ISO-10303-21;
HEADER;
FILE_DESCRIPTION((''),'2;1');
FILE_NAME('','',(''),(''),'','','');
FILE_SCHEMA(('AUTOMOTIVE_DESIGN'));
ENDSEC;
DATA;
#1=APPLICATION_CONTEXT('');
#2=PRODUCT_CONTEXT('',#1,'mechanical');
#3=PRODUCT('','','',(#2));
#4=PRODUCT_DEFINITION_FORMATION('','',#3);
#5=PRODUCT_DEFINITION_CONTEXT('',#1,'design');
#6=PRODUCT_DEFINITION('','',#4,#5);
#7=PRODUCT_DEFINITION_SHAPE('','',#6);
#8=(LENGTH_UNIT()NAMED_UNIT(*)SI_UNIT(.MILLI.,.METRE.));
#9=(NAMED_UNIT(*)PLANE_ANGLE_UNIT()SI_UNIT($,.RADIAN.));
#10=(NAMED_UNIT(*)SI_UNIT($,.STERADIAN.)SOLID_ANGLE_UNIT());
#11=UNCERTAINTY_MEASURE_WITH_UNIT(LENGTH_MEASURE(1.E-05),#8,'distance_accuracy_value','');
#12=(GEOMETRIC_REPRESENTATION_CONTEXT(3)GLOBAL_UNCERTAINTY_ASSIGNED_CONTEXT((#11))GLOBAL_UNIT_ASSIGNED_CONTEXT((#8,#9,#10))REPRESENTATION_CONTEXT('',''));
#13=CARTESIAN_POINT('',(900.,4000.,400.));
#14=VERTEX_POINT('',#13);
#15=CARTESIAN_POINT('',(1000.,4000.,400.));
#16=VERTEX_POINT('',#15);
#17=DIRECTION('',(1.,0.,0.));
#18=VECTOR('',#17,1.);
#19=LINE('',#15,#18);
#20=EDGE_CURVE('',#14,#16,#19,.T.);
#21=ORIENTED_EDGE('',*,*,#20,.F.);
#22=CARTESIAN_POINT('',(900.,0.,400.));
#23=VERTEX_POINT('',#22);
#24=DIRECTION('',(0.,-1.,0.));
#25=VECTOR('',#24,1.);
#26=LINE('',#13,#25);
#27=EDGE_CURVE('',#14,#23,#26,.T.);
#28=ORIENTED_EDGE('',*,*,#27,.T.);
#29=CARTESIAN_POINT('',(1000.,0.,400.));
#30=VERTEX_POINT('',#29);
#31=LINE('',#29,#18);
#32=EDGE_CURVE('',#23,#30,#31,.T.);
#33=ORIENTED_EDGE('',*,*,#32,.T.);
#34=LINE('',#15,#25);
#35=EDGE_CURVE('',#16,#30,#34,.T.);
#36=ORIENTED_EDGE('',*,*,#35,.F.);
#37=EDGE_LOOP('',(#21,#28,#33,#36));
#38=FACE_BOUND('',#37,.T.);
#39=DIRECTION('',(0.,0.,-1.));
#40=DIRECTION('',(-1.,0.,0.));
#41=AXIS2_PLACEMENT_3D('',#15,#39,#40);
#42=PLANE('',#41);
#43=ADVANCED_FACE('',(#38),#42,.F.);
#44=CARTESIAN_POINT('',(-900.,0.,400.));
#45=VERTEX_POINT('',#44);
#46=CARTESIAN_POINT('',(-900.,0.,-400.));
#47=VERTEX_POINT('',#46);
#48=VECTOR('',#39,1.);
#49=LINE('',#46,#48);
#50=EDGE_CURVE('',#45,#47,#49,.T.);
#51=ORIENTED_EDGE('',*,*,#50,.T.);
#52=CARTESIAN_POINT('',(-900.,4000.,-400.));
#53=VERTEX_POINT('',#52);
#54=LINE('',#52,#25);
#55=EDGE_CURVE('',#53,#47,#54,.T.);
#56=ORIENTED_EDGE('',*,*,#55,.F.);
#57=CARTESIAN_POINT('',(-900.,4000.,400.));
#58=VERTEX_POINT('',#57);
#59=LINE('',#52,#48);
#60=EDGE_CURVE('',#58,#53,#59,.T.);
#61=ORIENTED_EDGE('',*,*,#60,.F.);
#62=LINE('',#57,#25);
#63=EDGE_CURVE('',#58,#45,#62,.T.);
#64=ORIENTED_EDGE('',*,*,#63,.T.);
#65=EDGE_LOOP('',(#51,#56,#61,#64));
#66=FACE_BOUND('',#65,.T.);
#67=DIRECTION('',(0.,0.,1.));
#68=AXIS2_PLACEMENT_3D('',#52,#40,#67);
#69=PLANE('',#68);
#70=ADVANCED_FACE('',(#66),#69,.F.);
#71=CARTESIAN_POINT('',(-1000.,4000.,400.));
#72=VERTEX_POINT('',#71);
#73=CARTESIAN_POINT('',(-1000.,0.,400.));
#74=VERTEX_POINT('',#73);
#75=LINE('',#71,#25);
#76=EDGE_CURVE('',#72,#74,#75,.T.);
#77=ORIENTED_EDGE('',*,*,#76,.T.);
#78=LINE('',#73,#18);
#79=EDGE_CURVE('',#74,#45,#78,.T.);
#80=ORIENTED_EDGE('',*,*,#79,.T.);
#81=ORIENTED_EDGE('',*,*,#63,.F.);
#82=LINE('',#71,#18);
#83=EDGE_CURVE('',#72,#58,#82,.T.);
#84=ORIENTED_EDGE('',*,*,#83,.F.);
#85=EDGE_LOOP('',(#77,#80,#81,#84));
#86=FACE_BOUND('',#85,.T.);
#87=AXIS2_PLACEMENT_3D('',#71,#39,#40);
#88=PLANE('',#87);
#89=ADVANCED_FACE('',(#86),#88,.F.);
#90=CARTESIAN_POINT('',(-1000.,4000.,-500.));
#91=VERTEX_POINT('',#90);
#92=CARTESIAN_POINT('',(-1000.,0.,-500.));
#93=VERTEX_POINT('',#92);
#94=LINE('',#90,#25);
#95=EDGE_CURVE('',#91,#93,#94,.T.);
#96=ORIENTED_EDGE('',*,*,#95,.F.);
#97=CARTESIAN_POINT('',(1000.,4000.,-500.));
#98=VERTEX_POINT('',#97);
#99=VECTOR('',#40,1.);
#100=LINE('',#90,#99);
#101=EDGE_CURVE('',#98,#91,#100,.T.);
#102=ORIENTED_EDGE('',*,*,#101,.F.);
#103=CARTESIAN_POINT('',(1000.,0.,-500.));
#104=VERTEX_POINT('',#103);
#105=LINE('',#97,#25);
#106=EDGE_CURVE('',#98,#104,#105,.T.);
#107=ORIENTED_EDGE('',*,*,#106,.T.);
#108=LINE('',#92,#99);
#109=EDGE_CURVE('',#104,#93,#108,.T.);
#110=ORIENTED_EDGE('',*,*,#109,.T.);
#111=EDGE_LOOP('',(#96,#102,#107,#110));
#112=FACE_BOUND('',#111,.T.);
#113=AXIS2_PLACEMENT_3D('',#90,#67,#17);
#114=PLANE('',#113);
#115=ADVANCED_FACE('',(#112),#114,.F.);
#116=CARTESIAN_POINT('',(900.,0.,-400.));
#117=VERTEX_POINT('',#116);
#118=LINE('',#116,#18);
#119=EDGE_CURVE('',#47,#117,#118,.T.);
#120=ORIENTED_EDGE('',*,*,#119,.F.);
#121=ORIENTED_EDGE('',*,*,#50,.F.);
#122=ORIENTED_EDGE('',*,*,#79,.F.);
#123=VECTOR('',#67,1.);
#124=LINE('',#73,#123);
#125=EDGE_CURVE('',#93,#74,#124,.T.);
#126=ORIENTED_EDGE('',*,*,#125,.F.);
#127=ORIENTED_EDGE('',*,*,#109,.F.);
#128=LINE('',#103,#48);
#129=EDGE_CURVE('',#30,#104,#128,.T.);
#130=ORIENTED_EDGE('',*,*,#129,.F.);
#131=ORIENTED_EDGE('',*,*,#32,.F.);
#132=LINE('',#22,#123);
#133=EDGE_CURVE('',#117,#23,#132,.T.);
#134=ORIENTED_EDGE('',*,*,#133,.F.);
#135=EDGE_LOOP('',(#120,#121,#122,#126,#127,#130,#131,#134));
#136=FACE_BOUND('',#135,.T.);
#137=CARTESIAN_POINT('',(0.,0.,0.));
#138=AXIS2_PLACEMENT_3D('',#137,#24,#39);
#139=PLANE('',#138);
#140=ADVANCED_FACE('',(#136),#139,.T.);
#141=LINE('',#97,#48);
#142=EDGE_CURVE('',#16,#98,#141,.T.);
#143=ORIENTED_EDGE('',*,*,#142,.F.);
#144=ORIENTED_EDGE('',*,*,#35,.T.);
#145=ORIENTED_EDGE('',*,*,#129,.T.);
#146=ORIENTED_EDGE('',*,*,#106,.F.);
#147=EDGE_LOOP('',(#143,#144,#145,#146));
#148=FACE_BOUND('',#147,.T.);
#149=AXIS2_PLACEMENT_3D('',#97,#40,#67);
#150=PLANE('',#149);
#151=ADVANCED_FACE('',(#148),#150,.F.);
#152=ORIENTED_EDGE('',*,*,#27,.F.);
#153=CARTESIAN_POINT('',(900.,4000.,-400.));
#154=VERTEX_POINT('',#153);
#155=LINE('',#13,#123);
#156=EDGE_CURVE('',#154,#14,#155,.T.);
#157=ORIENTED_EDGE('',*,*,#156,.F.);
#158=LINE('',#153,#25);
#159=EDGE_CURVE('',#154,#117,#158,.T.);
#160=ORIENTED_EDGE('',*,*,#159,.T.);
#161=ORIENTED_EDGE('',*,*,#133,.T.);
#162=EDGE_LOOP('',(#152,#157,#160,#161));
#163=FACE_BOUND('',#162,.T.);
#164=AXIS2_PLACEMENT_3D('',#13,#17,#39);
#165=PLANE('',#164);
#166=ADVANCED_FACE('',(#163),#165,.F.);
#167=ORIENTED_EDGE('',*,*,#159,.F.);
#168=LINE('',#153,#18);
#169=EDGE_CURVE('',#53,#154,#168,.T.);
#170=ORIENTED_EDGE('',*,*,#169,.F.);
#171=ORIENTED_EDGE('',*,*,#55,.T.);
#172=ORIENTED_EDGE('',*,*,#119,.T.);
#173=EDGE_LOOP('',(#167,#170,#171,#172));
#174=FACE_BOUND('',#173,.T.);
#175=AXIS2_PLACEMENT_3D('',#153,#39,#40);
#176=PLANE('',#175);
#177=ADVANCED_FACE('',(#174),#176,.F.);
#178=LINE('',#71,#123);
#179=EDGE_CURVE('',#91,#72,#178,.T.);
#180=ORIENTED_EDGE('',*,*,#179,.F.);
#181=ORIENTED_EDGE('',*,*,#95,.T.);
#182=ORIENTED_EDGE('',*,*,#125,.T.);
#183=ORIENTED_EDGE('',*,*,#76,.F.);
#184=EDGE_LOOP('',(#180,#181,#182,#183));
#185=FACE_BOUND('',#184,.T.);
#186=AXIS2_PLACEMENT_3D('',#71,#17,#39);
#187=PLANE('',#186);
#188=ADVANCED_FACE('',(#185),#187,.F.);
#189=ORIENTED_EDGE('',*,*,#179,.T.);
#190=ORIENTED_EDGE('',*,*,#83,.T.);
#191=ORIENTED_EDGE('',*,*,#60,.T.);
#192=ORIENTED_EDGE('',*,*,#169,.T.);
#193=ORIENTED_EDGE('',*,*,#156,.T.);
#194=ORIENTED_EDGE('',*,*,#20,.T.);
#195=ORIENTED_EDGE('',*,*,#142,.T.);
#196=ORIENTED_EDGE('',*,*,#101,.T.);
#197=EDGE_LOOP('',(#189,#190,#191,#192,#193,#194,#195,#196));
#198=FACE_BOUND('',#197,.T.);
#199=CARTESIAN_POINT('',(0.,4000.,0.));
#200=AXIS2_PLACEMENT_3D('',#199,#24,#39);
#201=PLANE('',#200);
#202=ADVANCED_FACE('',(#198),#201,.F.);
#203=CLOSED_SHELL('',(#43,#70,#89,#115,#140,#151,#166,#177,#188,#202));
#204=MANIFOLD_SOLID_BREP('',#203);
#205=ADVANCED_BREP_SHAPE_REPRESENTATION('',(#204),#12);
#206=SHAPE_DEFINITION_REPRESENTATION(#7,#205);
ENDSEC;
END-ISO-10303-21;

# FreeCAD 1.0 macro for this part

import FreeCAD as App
import Part
import Sketcher
Q = App.Units.Quantity

doc = App.newDocument("Part")
params = doc.addObject("Spreadsheet::Sheet", "Params")
for row, (alias, value) in enumerate([
    ("sketch1_width", "100 mm"),
    ("sketch1_width2", "1800 mm"),
    ("sketch1_height", "900 mm"),
    ("sketch1_height2", "800 mm"),
    ("pad1_length", "4000 mm"),
], start=1):
    params.set(f"A{row}", alias)
    params.set(f"B{row}", "=" + value)
    params.setAlias(f"B{row}", alias)

body = doc.addObject("PartDesign::Body", "Body")

# Sketch on XZ plane
sketch1 = body.newObject("Sketcher::SketchObject", "Sketch")
sketch1.AttachmentSupport = (doc.getObject("XZ_Plane"), [""])
sketch1.MapMode = "FlatFace"
sketch1.addGeometry(Part.LineSegment(App.Vector(-1000, -500, 0), App.Vector(-1000, 400, 0)), False)
sketch1.addGeometry(Part.LineSegment(App.Vector(-1000, 400, 0), App.Vector(-900, 400, 0)), False)
sketch1.addGeometry(Part.LineSegment(App.Vector(-900, 400, 0), App.Vector(-900, -400, 0)), False)
sketch1.addGeometry(Part.LineSegment(App.Vector(-900, -400, 0), App.Vector(900, -400, 0)), False)
sketch1.addGeometry(Part.LineSegment(App.Vector(900, -400, 0), App.Vector(900, 400, 0)), False)
sketch1.addGeometry(Part.LineSegment(App.Vector(900, 400, 0), App.Vector(1000, 400, 0)), False)
sketch1.addGeometry(Part.LineSegment(App.Vector(1000, 400, 0), App.Vector(1000, -500, 0)), False)
sketch1.addGeometry(Part.LineSegment(App.Vector(1000, -500, 0), App.Vector(-1000, -500, 0)), False)
sketch1.addConstraint(Sketcher.Constraint("Coincident", 0, 2, 1, 1))
sketch1.addConstraint(Sketcher.Constraint("Coincident", 1, 2, 2, 1))
sketch1.addConstraint(Sketcher.Constraint("Coincident", 2, 2, 3, 1))
sketch1.addConstraint(Sketcher.Constraint("Coincident", 3, 2, 4, 1))
sketch1.addConstraint(Sketcher.Constraint("Coincident", 4, 2, 5, 1))
sketch1.addConstraint(Sketcher.Constraint("Coincident", 5, 2, 6, 1))
sketch1.addConstraint(Sketcher.Constraint("Coincident", 6, 2, 7, 1))
sketch1.addConstraint(Sketcher.Constraint("Coincident", 7, 2, 0, 1))
sketch1.addConstraint(Sketcher.Constraint("Vertical", 0))
sketch1.addConstraint(Sketcher.Constraint("Horizontal", 1))
sketch1.addConstraint(Sketcher.Constraint("Vertical", 2))
sketch1.addConstraint(Sketcher.Constraint("Horizontal", 3))
sketch1.addConstraint(Sketcher.Constraint("Vertical", 4))
sketch1.addConstraint(Sketcher.Constraint("Horizontal", 5))
sketch1.addConstraint(Sketcher.Constraint("Vertical", 6))
sketch1.addConstraint(Sketcher.Constraint("Horizontal", 7))
sketch1.addConstraint(Sketcher.Constraint("Symmetric", 1, 2, 3, 2, -1, 1))
sketch1.addConstraint(Sketcher.Constraint("Symmetric", 0, 2, 5, 2, -2))
sketch1.addConstraint(Sketcher.Constraint("DistanceX", 1, 1, 1, 2, Q("100 mm")))
sketch1.addConstraint(Sketcher.Constraint("DistanceX", 3, 1, 3, 2, Q("1800 mm")))
sketch1.addConstraint(Sketcher.Constraint("DistanceY", 0, 1, 0, 2, Q("900 mm")))
sketch1.addConstraint(Sketcher.Constraint("DistanceY", 2, 2, 2, 1, Q("800 mm")))
sketch1.setExpression("Constraints[18]", "Params.sketch1_width")
sketch1.setExpression("Constraints[19]", "Params.sketch1_width2")
sketch1.setExpression("Constraints[20]", "Params.sketch1_height")
sketch1.setExpression("Constraints[21]", "Params.sketch1_height2")
pad1 = body.newObject("PartDesign::Pad", "Pad")
pad1.Profile = sketch1
pad1.setExpression("Length", "Params.pad1_length")
pad1.Reversed = True

doc.recompute()
